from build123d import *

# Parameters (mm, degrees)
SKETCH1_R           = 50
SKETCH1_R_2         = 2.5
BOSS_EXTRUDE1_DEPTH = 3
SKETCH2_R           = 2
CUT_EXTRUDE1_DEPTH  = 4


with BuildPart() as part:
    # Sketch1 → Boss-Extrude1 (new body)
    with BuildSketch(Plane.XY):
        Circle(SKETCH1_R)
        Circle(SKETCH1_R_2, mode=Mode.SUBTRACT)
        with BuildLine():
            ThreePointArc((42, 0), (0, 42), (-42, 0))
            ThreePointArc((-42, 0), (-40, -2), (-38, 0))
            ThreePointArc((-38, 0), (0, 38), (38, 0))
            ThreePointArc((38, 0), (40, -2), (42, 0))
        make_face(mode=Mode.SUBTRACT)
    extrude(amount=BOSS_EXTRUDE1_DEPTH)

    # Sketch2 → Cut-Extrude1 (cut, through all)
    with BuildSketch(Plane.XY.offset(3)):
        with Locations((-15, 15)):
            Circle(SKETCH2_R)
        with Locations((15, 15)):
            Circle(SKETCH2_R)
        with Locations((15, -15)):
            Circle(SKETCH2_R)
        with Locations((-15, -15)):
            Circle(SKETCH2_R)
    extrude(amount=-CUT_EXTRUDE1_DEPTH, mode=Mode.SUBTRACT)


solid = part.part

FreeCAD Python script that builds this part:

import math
import FreeCAD as App
import Part
import Sketcher
Q = App.Units.Quantity

doc = App.newDocument("Part")
body = doc.addObject("PartDesign::Body", "Body")

sketch1 = doc.addObject("Sketcher::SketchObject", "Sketch")
body.addObject(sketch1)
sketch1.AttachmentSupport = (doc.XY_Plane, [""])
sketch1.MapMode = "FlatFace"
sketch1.addGeometry(Part.Circle(App.Vector(0, 0, 0), App.Vector(0, 0, 1), 50), False)
sketch1.addGeometry(Part.Circle(App.Vector(0, 0, 0), App.Vector(0, 0, 1), 2.5), False)
sketch1.addGeometry(Part.ArcOfCircle(Part.Circle(App.Vector(0, 0, 0), App.Vector(0, 0, 1), 42), math.radians(0), math.radians(180)), False)
sketch1.addGeometry(Part.ArcOfCircle(Part.Circle(App.Vector(40, 0, 0), App.Vector(0, 0, 1), 2), math.radians(180), math.radians(360)), False)
sketch1.addGeometry(Part.ArcOfCircle(Part.Circle(App.Vector(0, 0, 0), App.Vector(0, 0, 1), 38), math.radians(0), math.radians(180)), False)
sketch1.addGeometry(Part.ArcOfCircle(Part.Circle(App.Vector(-40, 0, 0), App.Vector(0, 0, 1), 2), math.radians(180), math.radians(360)), False)
sketch1.addConstraint(Sketcher.Constraint("Tangent", 2, 1, 3, 2))
sketch1.addConstraint(Sketcher.Constraint("Tangent", 3, 1, 4, 1))
sketch1.addConstraint(Sketcher.Constraint("Tangent", 4, 2, 5, 2))
sketch1.addConstraint(Sketcher.Constraint("Tangent", 5, 1, 2, 2))
sketch1.addConstraint(Sketcher.Constraint("Coincident", 0, 3, -1, 1))
sketch1.addConstraint(Sketcher.Constraint("Coincident", 1, 3, -1, 1))
sketch1.addConstraint(Sketcher.Constraint("Coincident", 2, 3, -1, 1))
sketch1.addConstraint(Sketcher.Constraint("Coincident", 4, 3, -1, 1))
sketch1.addConstraint(Sketcher.Constraint("PointOnObject", 3, 3, -1))
sketch1.addConstraint(Sketcher.Constraint("PointOnObject", 5, 3, -1))
sketch1.addConstraint(Sketcher.Constraint("Diameter", 0, Q("100 mm")))
sketch1.addConstraint(Sketcher.Constraint("Diameter", 1, Q("5 mm")))
sketch1.addConstraint(Sketcher.Constraint("Radius", 2, Q("42 mm")))
sketch1.addConstraint(Sketcher.Constraint("Radius", 3, Q("2 mm")))
pad1 = doc.addObject("PartDesign::Pad", "Pad")
body.addObject(pad1)
pad1.Profile = sketch1
pad1.Length = 3

sketch2 = doc.addObject("Sketcher::SketchObject", "Sketch001")
body.addObject(sketch2)
sketch2.AttachmentSupport = (doc.XY_Plane, [""])
sketch2.MapMode = "FlatFace"
sketch2.AttachmentOffset = App.Placement(App.Vector(0, 0, 3), App.Rotation())
sketch2.addGeometry(Part.Circle(App.Vector(-15, 15, 0), App.Vector(0, 0, 1), 2), False)
sketch2.addGeometry(Part.Circle(App.Vector(15, 15, 0), App.Vector(0, 0, 1), 2), False)
sketch2.addGeometry(Part.Circle(App.Vector(15, -15, 0), App.Vector(0, 0, 1), 2), False)
sketch2.addGeometry(Part.Circle(App.Vector(-15, -15, 0), App.Vector(0, 0, 1), 2), False)
sketch2.addConstraint(Sketcher.Constraint("Equal", 0, 1))
sketch2.addConstraint(Sketcher.Constraint("Equal", 1, 2))
sketch2.addConstraint(Sketcher.Constraint("Equal", 2, 3))
sketch2.addConstraint(Sketcher.Constraint("Symmetric", 0, 3, 2, 3, -1, 1))
sketch2.addConstraint(Sketcher.Constraint("Symmetric", 1, 3, 3, 3, -1, 1))
sketch2.addConstraint(Sketcher.Constraint("Symmetric", 0, 3, 1, 3, -2))
sketch2.addConstraint(Sketcher.Constraint("Diameter", 0, Q("4 mm")))
sketch2.addConstraint(Sketcher.Constraint("DistanceX", 0, 3, -1, 1, Q("15 mm")))
sketch2.addConstraint(Sketcher.Constraint("DistanceY", -1, 1, 0, 3, Q("15 mm")))
pocket1 = doc.addObject("PartDesign::Pocket", "Pocket")
body.addObject(pocket1)
pocket1.Profile = sketch2
pocket1.Type = "ThroughAll"

doc.recompute()
